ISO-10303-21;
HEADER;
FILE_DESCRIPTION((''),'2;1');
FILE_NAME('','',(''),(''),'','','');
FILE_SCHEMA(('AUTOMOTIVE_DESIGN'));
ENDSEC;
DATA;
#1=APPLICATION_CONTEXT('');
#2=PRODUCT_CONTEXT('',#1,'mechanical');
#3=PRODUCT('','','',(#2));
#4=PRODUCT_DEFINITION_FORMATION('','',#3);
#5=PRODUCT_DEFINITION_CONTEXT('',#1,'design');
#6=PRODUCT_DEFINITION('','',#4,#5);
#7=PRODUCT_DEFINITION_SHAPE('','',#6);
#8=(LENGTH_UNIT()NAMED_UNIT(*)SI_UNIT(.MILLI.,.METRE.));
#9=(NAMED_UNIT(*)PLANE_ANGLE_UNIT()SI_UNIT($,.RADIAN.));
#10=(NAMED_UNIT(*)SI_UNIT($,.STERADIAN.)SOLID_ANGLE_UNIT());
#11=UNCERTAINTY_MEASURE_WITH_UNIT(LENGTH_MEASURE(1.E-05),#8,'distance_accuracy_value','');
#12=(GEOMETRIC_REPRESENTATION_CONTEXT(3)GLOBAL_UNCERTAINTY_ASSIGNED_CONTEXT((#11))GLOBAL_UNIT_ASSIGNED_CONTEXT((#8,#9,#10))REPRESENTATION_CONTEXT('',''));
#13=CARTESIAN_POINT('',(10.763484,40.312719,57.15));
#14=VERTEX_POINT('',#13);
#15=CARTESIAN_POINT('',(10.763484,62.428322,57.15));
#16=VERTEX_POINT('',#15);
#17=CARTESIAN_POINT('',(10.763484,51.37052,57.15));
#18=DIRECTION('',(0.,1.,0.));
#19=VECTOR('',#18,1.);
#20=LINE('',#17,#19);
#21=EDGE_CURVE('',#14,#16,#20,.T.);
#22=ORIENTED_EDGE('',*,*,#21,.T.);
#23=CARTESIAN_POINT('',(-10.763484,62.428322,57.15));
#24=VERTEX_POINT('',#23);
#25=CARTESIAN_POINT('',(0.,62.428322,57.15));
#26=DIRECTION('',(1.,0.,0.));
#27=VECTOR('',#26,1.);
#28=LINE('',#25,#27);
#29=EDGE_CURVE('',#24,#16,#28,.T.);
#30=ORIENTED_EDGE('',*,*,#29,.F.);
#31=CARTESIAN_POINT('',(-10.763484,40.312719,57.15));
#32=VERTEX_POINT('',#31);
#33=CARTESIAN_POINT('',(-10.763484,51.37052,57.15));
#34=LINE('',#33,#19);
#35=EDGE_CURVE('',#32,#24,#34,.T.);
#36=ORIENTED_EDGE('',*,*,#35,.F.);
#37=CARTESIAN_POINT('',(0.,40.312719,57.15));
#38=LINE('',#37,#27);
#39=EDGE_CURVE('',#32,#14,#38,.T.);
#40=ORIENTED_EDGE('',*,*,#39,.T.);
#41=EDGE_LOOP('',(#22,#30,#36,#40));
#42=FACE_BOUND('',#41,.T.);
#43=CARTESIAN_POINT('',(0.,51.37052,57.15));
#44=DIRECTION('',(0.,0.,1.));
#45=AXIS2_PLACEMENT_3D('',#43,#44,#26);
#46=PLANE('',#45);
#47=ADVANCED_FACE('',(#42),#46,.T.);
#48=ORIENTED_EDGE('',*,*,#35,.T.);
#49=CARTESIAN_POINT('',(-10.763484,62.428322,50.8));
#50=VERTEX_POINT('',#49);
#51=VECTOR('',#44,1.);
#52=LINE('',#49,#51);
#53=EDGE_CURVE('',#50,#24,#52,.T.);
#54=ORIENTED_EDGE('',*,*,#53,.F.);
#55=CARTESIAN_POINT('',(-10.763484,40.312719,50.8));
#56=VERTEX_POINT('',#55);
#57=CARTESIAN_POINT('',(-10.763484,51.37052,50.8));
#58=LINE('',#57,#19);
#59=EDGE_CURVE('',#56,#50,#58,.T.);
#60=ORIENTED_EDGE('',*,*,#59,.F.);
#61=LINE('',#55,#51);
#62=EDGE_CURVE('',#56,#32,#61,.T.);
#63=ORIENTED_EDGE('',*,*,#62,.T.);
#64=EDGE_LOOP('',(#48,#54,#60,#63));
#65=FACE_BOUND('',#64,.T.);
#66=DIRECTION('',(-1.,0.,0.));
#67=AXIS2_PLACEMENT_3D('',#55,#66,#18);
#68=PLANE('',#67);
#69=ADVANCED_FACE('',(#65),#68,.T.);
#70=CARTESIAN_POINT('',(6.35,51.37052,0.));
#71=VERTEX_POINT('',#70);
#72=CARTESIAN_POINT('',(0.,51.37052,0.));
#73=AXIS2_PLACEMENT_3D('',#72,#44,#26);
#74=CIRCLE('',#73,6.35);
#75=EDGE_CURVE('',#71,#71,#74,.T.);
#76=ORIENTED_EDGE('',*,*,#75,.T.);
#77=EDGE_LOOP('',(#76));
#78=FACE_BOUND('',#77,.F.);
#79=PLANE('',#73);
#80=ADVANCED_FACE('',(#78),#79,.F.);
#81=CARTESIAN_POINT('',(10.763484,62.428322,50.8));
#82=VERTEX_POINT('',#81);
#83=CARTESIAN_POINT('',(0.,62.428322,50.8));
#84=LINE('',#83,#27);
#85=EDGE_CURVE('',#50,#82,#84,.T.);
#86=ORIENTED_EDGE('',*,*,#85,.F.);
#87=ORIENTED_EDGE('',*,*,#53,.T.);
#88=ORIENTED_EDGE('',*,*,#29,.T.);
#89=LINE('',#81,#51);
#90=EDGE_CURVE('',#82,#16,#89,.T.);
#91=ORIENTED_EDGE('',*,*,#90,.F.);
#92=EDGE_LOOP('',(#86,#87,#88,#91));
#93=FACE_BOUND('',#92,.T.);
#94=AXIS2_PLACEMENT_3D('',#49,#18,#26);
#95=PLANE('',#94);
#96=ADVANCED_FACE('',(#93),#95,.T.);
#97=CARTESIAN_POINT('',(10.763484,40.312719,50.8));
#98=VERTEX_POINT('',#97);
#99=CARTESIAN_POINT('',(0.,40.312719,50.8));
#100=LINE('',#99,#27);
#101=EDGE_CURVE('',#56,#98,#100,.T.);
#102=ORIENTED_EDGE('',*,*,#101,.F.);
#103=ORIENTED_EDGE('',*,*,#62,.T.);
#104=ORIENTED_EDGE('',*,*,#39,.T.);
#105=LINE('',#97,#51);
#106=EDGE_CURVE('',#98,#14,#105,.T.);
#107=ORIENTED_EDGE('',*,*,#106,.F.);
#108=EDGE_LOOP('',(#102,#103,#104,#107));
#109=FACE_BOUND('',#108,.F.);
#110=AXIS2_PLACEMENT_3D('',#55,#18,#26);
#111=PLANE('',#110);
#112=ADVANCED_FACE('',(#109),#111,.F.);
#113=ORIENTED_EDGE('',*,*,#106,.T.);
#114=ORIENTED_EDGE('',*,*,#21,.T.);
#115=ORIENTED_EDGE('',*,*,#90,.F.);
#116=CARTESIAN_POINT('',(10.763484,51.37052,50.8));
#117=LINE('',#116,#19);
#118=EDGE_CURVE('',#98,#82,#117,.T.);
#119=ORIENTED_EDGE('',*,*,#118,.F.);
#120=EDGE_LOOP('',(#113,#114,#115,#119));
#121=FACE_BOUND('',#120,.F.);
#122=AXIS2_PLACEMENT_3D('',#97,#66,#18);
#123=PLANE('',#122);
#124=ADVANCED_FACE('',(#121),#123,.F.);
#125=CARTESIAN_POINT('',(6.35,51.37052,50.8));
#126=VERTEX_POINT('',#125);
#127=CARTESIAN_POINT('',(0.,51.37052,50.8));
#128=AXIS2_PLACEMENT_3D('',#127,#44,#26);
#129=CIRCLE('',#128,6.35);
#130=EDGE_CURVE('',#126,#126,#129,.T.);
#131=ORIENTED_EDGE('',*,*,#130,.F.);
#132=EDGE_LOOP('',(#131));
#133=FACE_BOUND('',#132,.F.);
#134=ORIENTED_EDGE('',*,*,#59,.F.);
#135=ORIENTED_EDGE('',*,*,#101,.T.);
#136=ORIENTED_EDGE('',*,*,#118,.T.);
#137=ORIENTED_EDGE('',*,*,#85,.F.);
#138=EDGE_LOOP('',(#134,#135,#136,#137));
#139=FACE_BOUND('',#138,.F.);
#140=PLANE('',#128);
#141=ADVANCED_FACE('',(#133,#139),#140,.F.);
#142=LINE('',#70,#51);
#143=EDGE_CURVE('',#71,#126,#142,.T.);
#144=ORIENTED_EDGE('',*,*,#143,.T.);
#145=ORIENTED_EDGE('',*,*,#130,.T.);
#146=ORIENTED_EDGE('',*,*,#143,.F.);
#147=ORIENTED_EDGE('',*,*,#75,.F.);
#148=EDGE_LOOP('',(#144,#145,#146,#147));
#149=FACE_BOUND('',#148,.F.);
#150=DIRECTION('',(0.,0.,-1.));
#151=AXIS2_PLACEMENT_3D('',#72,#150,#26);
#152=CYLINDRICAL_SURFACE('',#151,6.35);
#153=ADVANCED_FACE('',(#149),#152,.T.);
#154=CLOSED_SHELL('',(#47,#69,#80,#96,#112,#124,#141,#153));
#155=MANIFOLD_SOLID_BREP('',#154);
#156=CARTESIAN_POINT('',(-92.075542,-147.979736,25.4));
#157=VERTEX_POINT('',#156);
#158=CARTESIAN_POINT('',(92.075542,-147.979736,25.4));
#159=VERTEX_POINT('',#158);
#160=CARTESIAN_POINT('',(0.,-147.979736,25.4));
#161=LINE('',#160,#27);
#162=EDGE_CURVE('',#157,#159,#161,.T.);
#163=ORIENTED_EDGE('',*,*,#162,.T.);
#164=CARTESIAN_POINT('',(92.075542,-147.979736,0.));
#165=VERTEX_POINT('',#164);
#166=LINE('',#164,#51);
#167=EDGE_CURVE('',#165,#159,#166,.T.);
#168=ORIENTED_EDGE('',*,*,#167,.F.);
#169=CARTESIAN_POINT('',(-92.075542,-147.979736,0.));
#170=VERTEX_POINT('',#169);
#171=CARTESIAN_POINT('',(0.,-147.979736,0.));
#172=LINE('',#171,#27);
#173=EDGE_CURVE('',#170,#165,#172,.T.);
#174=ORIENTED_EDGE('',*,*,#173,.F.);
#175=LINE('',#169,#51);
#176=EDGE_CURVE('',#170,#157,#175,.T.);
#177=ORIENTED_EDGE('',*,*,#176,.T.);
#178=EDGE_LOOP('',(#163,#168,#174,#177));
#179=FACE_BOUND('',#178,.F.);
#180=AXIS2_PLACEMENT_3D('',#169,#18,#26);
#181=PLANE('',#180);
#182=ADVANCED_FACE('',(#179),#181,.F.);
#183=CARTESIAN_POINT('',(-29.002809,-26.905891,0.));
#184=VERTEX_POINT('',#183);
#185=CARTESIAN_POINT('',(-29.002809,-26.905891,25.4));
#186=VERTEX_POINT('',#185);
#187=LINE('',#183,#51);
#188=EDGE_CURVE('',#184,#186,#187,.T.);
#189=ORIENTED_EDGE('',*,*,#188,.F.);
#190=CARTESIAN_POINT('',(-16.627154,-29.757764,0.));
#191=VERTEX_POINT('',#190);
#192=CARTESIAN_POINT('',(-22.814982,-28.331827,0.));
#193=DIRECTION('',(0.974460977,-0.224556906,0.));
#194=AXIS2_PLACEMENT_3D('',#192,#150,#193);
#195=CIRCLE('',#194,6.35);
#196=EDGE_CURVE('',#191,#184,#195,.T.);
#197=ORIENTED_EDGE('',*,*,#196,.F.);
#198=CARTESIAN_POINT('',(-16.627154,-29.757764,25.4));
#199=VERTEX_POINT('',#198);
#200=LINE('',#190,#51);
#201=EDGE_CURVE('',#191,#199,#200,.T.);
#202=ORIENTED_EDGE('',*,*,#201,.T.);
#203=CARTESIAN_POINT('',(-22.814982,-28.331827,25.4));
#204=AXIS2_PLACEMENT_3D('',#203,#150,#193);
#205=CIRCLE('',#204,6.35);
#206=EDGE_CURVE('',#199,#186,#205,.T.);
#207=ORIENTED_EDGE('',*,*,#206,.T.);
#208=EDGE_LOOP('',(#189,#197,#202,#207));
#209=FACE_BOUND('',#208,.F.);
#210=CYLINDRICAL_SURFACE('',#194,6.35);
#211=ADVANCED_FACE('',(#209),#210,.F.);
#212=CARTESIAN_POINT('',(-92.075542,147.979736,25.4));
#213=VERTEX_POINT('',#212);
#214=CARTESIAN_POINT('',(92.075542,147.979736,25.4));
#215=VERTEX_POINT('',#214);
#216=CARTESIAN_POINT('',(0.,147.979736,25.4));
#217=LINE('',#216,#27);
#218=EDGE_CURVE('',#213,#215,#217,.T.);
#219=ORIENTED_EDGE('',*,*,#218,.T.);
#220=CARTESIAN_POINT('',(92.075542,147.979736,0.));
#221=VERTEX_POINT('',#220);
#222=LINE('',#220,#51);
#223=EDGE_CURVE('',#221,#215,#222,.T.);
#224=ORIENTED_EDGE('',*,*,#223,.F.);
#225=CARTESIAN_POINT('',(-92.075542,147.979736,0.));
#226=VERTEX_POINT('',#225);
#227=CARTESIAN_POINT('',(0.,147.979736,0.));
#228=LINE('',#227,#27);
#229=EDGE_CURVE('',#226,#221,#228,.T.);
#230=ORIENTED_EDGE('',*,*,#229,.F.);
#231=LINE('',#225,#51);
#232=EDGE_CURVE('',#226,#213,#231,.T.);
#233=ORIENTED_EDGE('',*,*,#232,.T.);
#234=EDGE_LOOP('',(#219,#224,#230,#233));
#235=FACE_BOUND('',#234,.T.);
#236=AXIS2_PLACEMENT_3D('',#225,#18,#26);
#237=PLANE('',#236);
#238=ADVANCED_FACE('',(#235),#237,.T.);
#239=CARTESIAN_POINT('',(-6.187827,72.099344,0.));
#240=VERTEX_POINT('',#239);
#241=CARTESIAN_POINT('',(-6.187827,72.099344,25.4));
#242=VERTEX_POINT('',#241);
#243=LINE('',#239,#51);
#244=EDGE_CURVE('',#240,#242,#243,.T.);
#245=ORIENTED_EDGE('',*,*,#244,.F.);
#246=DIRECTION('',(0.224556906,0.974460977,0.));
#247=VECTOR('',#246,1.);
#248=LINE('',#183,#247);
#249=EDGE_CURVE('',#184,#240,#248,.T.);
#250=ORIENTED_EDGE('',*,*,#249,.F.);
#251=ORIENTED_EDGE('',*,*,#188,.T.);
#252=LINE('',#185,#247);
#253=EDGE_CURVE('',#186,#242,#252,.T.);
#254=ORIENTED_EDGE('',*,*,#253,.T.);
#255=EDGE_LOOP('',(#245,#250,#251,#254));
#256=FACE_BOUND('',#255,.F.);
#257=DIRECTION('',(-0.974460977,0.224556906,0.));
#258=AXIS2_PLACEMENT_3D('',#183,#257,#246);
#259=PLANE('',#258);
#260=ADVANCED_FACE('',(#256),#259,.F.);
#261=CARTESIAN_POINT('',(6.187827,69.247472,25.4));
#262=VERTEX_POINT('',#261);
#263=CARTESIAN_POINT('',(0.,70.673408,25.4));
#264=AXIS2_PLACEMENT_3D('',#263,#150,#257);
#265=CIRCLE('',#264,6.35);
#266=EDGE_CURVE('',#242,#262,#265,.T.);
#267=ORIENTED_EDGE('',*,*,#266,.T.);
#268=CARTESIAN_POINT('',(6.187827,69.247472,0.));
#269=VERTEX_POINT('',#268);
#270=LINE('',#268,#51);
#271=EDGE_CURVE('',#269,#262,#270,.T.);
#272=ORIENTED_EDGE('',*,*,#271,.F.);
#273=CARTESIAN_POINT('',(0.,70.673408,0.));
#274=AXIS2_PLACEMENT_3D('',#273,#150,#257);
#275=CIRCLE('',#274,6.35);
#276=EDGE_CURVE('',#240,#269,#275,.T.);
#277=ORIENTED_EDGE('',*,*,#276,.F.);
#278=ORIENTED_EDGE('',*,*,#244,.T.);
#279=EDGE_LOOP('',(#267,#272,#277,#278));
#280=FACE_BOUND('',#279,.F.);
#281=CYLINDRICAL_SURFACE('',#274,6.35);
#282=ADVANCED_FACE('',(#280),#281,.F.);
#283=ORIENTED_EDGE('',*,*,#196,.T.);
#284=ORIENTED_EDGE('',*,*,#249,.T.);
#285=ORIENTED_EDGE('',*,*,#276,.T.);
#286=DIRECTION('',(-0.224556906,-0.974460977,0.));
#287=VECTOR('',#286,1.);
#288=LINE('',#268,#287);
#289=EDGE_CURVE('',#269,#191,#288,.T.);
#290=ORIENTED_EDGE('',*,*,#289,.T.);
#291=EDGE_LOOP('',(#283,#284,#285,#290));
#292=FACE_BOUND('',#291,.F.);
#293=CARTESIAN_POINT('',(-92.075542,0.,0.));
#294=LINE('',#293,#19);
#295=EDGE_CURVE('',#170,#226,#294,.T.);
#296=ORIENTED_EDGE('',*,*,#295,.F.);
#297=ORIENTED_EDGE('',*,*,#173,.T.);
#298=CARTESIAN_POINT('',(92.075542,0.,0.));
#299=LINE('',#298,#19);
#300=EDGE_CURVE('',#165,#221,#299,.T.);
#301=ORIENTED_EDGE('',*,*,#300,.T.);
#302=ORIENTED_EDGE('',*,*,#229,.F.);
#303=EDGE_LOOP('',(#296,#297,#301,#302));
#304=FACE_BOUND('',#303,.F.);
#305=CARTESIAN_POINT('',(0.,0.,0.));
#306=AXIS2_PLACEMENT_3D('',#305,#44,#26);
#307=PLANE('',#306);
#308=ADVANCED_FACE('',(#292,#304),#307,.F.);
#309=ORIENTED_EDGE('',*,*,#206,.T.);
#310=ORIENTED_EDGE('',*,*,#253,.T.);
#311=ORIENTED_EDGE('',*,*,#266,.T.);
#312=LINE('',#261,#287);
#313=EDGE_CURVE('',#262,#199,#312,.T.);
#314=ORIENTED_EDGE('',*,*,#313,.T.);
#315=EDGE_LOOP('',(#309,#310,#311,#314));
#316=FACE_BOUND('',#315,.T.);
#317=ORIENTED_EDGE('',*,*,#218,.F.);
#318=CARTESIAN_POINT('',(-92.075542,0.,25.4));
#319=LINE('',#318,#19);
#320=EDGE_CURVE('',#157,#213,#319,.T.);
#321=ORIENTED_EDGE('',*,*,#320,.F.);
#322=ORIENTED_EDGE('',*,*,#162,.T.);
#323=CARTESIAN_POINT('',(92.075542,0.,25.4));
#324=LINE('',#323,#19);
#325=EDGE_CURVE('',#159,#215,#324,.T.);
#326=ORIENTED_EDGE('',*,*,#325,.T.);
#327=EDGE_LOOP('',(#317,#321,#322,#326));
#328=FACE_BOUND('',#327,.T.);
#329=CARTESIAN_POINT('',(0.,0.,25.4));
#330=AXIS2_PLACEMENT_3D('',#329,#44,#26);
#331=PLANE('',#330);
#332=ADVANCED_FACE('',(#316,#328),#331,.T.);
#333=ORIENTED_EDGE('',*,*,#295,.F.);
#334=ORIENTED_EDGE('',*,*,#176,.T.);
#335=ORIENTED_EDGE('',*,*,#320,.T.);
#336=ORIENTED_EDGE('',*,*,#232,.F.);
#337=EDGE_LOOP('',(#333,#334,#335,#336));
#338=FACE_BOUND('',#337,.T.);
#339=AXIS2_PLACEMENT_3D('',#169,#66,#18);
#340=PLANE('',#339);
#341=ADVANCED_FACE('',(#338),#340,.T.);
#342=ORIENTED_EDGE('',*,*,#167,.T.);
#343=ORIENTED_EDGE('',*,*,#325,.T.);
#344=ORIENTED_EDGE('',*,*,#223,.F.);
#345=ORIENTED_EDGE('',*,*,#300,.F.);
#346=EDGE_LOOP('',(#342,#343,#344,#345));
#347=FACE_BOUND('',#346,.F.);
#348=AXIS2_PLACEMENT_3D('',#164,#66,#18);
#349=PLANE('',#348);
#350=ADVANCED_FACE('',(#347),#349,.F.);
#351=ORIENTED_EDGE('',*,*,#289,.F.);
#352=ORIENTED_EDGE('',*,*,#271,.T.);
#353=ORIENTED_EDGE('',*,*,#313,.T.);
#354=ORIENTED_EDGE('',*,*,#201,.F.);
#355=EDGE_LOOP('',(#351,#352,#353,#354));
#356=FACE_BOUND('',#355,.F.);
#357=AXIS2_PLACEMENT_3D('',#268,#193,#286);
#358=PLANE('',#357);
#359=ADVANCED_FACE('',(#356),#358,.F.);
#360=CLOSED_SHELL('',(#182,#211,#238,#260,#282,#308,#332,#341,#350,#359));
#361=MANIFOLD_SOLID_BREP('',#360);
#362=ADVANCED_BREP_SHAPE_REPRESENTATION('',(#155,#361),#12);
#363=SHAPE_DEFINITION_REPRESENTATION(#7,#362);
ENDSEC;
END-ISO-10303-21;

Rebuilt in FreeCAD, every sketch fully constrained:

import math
import FreeCAD as App
import Part
import Sketcher

V = App.Vector
Q = App.Units.Quantity

doc = App.newDocument("Part")
body = doc.addObject("PartDesign::Body", "Body")

sketch1 = doc.addObject("Sketcher::SketchObject", "Sketch")
body.addObject(sketch1)
sketch1.AttachmentSupport = (doc.XY_Plane, [""])
sketch1.MapMode = "FlatFace"
sketch1.addGeometry(Part.LineSegment(V(-92.075542, 147.979736, 0), V(-92.075542, -147.979736, 0)), False)
sketch1.addGeometry(Part.LineSegment(V(-92.075542, -147.979736, 0), V(92.075542, -147.979736, 0)), False)
sketch1.addGeometry(Part.LineSegment(V(92.075542, -147.979736, 0), V(92.075542, 147.979736, 0)), False)
sketch1.addGeometry(Part.LineSegment(V(92.075542, 147.979736, 0), V(-92.075542, 147.979736, 0)), False)
sketch1.addGeometry(Part.ArcOfCircle(Part.Circle(V(-22.814982, -28.331827, 0), V(0, 0, 1), 6.35), math.radians(167.023176), math.radians(347.023176)), False)
sketch1.addGeometry(Part.LineSegment(V(-29.002809, -26.905891, 0), V(-6.187827, 72.099344, 0)), False)
sketch1.addGeometry(Part.ArcOfCircle(Part.Circle(V(0, 70.673408, 0), V(0, 0, 1), 6.35), math.radians(-12.976824), math.radians(167.023176)), False)
sketch1.addGeometry(Part.LineSegment(V(6.187827, 69.247472, 0), V(-16.627154, -29.757764, 0)), False)
sketch1.addConstraint(Sketcher.Constraint("Coincident", 0, 2, 1, 1))
sketch1.addConstraint(Sketcher.Constraint("Coincident", 1, 2, 2, 1))
sketch1.addConstraint(Sketcher.Constraint("Coincident", 2, 2, 3, 1))
sketch1.addConstraint(Sketcher.Constraint("Coincident", 3, 2, 0, 1))
sketch1.addConstraint(Sketcher.Constraint("Tangent", 4, 1, 5, 1))
sketch1.addConstraint(Sketcher.Constraint("Tangent", 5, 2, 6, 2))
sketch1.addConstraint(Sketcher.Constraint("Tangent", 6, 1, 7, 1))
sketch1.addConstraint(Sketcher.Constraint("Tangent", 7, 2, 4, 2))
sketch1.addConstraint(Sketcher.Constraint("Vertical", 0))
sketch1.addConstraint(Sketcher.Constraint("Horizontal", 1))
sketch1.addConstraint(Sketcher.Constraint("Vertical", 2))
sketch1.addConstraint(Sketcher.Constraint("Horizontal", 3))
sketch1.addConstraint(Sketcher.Constraint("Equal", 4, 6))
sketch1.addConstraint(Sketcher.Constraint("Symmetric", 0, 2, 2, 2, -1, 1))
sketch1.addConstraint(Sketcher.Constraint("PointOnObject", 6, 3, -2))
sketch1.addConstraint(Sketcher.Constraint("Radius", 4, Q("0.25 in")))
sketch1.addConstraint(Sketcher.Constraint("Distance", 5, Q("4 in")))
sketch1.addConstraint(Sketcher.Constraint("DistanceY", 4, 3, 2, 2, Q("6.9414001 in")))
sketch1.addConstraint(Sketcher.Constraint("DistanceY", 4, 1, 6, 3, 97.579299))
sketch1.addConstraint(Sketcher.Constraint("DistanceX", 1, 1, 1, 2, 184.151083))
sketch1.addConstraint(Sketcher.Constraint("DistanceY", 0, 2, 0, 1, 295.959473))
pad1 = doc.addObject("PartDesign::Pad", "Pad")
body.addObject(pad1)
pad1.Profile = sketch1
pad1.Length = Q("1 in")
body2 = doc.addObject("PartDesign::Body", "Body001")

sketch2 = doc.addObject("Sketcher::SketchObject", "Sketch001")
body2.addObject(sketch2)
sketch2.AttachmentSupport = (doc.getObject("XY_Plane001"), [""])
sketch2.MapMode = "FlatFace"
sketch2.addGeometry(Part.Circle(V(0, 51.37052, 0), V(0, 0, 1), 6.35), False)
sketch2.addConstraint(Sketcher.Constraint("PointOnObject", 0, 3, -2))
sketch2.addConstraint(Sketcher.Constraint("Diameter", 0, Q("0.5 in")))
sketch2.addConstraint(Sketcher.Constraint("DistanceY", -1, 1, 0, 3, 51.37052))
pad2 = doc.addObject("PartDesign::Pad", "Pad001")
body2.addObject(pad2)
pad2.Profile = sketch2
pad2.Length = Q("2 in")

sketch3 = doc.addObject("Sketcher::SketchObject", "Sketch002")
body2.addObject(sketch3)
sketch3.AttachmentSupport = (doc.getObject("XY_Plane001"), [""])
sketch3.MapMode = "FlatFace"
sketch3.AttachmentOffset = App.Placement(V(0, 0, 2 * 25.4), App.Rotation())
sketch3.addGeometry(Part.LineSegment(V(-10.763484, 62.428322, 0), V(-10.763484, 40.312719, 0)), False)
sketch3.addGeometry(Part.LineSegment(V(-10.763484, 40.312719, 0), V(10.763484, 40.312719, 0)), False)
sketch3.addGeometry(Part.LineSegment(V(10.763484, 40.312719, 0), V(10.763484, 62.428322, 0)), False)
sketch3.addGeometry(Part.LineSegment(V(10.763484, 62.428322, 0), V(-10.763484, 62.428322, 0)), False)
sketch3.addConstraint(Sketcher.Constraint("Coincident", 0, 2, 1, 1))
sketch3.addConstraint(Sketcher.Constraint("Coincident", 1, 2, 2, 1))
sketch3.addConstraint(Sketcher.Constraint("Coincident", 2, 2, 3, 1))
sketch3.addConstraint(Sketcher.Constraint("Coincident", 3, 2, 0, 1))
sketch3.addConstraint(Sketcher.Constraint("Vertical", 0))
sketch3.addConstraint(Sketcher.Constraint("Horizontal", 1))
sketch3.addConstraint(Sketcher.Constraint("Vertical", 2))
sketch3.addConstraint(Sketcher.Constraint("Horizontal", 3))
sketch3.addConstraint(Sketcher.Constraint("DistanceX", 1, 1, 1, 2, 21.526968))
sketch3.addConstraint(Sketcher.Constraint("DistanceY", 0, 2, 0, 1, 22.115603))
sketch3.addConstraint(Sketcher.Constraint("DistanceY", -1, 1, 0, 2, 40.312719))
sketch3.addConstraint(Sketcher.Constraint("DistanceX", 0, 2, -1, 1, 10.763484))
pad3 = doc.addObject("PartDesign::Pad", "Pad002")
body2.addObject(pad3)
pad3.Profile = sketch3
pad3.Length = Q("0.25 in")

doc.recompute()
